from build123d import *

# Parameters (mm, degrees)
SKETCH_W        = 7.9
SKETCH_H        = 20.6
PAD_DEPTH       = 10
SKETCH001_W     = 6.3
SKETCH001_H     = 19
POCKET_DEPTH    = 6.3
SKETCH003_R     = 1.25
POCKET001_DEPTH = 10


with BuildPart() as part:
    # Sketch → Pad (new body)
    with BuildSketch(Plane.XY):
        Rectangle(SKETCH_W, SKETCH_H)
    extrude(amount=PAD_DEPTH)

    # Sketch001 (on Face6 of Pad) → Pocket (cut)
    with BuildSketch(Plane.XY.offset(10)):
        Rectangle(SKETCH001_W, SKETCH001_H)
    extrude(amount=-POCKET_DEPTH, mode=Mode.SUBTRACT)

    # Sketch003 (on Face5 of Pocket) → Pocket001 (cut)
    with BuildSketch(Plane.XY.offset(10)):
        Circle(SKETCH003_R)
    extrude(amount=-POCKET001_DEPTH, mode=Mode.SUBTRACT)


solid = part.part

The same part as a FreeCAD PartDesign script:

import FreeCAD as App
import Part
import Sketcher


def add_polygon(sketch, points):
    """Adds a closed chain of lines whose ends are joined by coincident constraints."""
    first, n = sketch.GeometryCount, len(points)
    for a, b in zip(points, points[1:] + points[:1]):
        sketch.addGeometry(Part.LineSegment(App.Vector(*a, 0), App.Vector(*b, 0)), False)
    for i in range(n):
        sketch.addConstraint(Sketcher.Constraint("Coincident", first + i, 2, first + (i + 1) % n, 1))

doc = App.newDocument("Part")
body = doc.addObject("PartDesign::Body", "Body")

# Sketch on XY plane
sketch1 = doc.addObject("Sketcher::SketchObject", "Sketch")
body.addObject(sketch1)
sketch1.AttachmentSupport = (doc.XY_Plane, [""])
sketch1.MapMode = "FlatFace"
add_polygon(sketch1, [(-4, 10), (-4, -10), (4, -10), (4, 10)])  # lines 0-3
sketch1.addConstraint([
    Sketcher.Constraint("Vertical", 0),
    Sketcher.Constraint("Horizontal", 1),
    Sketcher.Constraint("Vertical", 2),
    Sketcher.Constraint("Horizontal", 3),
    Sketcher.Constraint("Symmetric", 0, 2, 2, 2, -1, 1),
    Sketcher.Constraint("DistanceX", 1, 1, 1, 2, 7.9),
    Sketcher.Constraint("DistanceY", 0, 2, 0, 1, 20.6),
])
pad1 = doc.addObject("PartDesign::Pad", "Pad")
body.addObject(pad1)
pad1.Profile = sketch1
pad1.Length = 10

# Sketch on XY plane
sketch2 = doc.addObject("Sketcher::SketchObject", "Sketch001")
body.addObject(sketch2)
sketch2.AttachmentSupport = (doc.XY_Plane, [""])
sketch2.MapMode = "FlatFace"
sketch2.AttachmentOffset = App.Placement(App.Vector(0, 0, 10), App.Rotation())
add_polygon(sketch2, [(-3, 10), (-3, -10), (3, -10), (3, 10)])  # lines 0-3
sketch2.addConstraint([
    Sketcher.Constraint("Vertical", 0),
    Sketcher.Constraint("Horizontal", 1),
    Sketcher.Constraint("Vertical", 2),
    Sketcher.Constraint("Horizontal", 3),
    Sketcher.Constraint("Symmetric", 0, 2, 2, 2, -1, 1),
    Sketcher.Constraint("DistanceY", 0, 2, 0, 1, 19.0),
    Sketcher.Constraint("DistanceX", 1, 1, 1, 2, 6.3),
])
pocket1 = doc.addObject("PartDesign::Pocket", "Pocket")
body.addObject(pocket1)
pocket1.Profile = sketch2
pocket1.Length = 6.3

# Sketch on XY plane
sketch3 = doc.addObject("Sketcher::SketchObject", "Sketch002")
body.addObject(sketch3)
sketch3.AttachmentSupport = (doc.XY_Plane, [""])
sketch3.MapMode = "FlatFace"
sketch3.AttachmentOffset = App.Placement(App.Vector(0, 0, 10), App.Rotation())
sketch3.addGeometry(Part.Circle(App.Vector(0, 0, 0), App.Vector(0, 0, 1), 1.2), False)
sketch3.addConstraint([
    Sketcher.Constraint("Coincident", 0, 3, -1, 1),
    Sketcher.Constraint("Diameter", 0, 2.5),
])
pocket2 = doc.addObject("PartDesign::Pocket", "Pocket001")
body.addObject(pocket2)
pocket2.Profile = sketch3
pocket2.Length = 10

doc.recompute()
